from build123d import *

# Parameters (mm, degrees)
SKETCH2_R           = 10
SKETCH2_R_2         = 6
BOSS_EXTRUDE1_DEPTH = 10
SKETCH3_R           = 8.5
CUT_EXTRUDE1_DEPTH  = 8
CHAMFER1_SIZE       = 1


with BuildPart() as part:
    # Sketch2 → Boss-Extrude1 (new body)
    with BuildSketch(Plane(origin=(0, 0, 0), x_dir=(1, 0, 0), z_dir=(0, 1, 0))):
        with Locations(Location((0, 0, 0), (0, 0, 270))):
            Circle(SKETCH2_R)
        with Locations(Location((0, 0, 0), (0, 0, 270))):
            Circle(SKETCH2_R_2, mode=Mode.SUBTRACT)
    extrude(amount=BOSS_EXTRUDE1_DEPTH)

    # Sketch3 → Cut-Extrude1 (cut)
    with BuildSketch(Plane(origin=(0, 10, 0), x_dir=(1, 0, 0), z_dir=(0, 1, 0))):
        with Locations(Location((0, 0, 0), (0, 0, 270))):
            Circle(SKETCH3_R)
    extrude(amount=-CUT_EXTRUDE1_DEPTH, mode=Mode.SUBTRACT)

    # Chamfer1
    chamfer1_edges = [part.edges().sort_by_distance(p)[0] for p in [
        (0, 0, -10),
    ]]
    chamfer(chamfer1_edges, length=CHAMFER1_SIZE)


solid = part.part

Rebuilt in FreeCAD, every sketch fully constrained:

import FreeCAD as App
import Part
import Sketcher
Q = App.Units.Quantity


def edges_at(feature, points):
    """Names of the edges that pass closest to the given points."""
    edges = feature.Shape.Edges
    near = lambda p: min(range(len(edges)), key=lambda i: edges[i].distToShape(Part.Vertex(*p))[0])
    return sorted({f"Edge{near(p) + 1}" for p in points})

doc = App.newDocument("Part")
body = doc.addObject("PartDesign::Body", "Body")

sketch1 = body.newObject("Sketcher::SketchObject", "Sketch")
sketch1.AttachmentSupport = (doc.getObject("XZ_Plane"), [""])
sketch1.MapMode = "FlatFace"
sketch1.addGeometry(Part.Circle(App.Vector(0, 0, 0), App.Vector(0, 0, 1), 10), False)
sketch1.addGeometry(Part.Circle(App.Vector(0, 0, 0), App.Vector(0, 0, 1), 6), False)
sketch1.addConstraint(Sketcher.Constraint("Coincident", 0, 3, -1, 1))
sketch1.addConstraint(Sketcher.Constraint("Coincident", 1, 3, -1, 1))
sketch1.addConstraint(Sketcher.Constraint("Diameter", 0, Q("20 mm")))
sketch1.addConstraint(Sketcher.Constraint("Diameter", 1, Q("12 mm")))
pad1 = body.newObject("PartDesign::Pad", "Pad")
pad1.Profile = sketch1
pad1.Length = 10
pad1.Reversed = True

sketch2 = body.newObject("Sketcher::SketchObject", "Sketch001")
sketch2.AttachmentSupport = (doc.getObject("XZ_Plane"), [""])
sketch2.MapMode = "FlatFace"
sketch2.AttachmentOffset = App.Placement(App.Vector(0, 0, -10), App.Rotation())
sketch2.addGeometry(Part.Circle(App.Vector(0, 0, 0), App.Vector(0, 0, 1), 8.5), False)
sketch2.addConstraint(Sketcher.Constraint("Coincident", 0, 3, -1, 1))
sketch2.addConstraint(Sketcher.Constraint("Diameter", 0, Q("17 mm")))
pocket1 = body.newObject("PartDesign::Pocket", "Pocket")
pocket1.Profile = sketch2
pocket1.Length = 8
pocket1.Reversed = True
doc.recompute()

chamfer = body.newObject("PartDesign::Chamfer", "Chamfer")
chamfer.Base = (pocket1, edges_at(pocket1, [(0, 0, -10)]))
chamfer.Size = 1

doc.recompute()
